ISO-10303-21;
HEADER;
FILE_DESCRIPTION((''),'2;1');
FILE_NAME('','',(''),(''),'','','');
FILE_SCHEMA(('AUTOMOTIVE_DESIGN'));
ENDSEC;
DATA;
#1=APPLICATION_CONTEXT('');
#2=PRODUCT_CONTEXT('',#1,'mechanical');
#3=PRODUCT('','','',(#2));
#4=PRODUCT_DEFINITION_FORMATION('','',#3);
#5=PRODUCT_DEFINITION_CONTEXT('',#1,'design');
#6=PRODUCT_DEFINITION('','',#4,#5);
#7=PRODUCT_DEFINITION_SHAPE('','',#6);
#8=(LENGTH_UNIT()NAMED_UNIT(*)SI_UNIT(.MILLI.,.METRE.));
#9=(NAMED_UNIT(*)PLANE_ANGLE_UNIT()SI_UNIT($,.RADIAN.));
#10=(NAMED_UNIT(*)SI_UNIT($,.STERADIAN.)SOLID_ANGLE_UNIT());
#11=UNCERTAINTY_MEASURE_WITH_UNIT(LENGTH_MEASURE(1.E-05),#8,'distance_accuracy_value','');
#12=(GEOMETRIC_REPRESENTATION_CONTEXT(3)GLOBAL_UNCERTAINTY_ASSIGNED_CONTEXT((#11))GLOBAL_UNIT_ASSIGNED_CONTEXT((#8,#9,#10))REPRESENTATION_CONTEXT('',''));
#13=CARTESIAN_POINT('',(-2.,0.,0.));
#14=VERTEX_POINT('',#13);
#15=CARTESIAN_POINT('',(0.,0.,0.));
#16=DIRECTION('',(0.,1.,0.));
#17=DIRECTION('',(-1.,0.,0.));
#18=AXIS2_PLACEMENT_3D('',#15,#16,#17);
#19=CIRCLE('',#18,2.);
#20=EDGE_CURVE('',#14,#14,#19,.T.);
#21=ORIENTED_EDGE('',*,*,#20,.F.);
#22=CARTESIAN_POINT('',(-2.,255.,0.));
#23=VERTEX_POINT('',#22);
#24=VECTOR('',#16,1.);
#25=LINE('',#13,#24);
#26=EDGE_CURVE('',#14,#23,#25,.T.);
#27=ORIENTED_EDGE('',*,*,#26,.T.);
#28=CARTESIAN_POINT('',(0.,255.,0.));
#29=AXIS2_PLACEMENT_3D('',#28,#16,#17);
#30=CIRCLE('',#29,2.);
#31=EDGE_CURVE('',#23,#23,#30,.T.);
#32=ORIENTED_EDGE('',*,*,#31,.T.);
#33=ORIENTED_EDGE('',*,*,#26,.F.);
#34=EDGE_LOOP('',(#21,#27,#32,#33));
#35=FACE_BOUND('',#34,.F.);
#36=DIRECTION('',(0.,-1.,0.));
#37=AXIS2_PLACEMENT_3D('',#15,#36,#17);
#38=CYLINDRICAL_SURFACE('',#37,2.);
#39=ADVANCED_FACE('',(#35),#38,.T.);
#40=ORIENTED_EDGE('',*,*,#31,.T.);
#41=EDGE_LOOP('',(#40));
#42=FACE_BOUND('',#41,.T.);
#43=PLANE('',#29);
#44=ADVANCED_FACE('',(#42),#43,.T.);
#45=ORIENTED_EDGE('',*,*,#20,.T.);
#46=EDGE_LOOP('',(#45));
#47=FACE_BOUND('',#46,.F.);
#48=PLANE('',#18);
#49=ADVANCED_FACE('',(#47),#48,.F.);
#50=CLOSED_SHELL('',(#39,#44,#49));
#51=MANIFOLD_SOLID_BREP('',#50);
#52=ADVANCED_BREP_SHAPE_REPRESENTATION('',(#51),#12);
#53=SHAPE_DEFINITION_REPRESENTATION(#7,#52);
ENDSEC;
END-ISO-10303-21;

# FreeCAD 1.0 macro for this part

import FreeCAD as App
import Part
import Sketcher

doc = App.newDocument("Part")
body = doc.addObject("PartDesign::Body", "Body")

sketch1 = body.newObject("Sketcher::SketchObject", "Sketch")
sketch1.AttachmentSupport = (doc.getObject("XZ_Plane"), [""])
sketch1.MapMode = "FlatFace"
sketch1.addGeometry(Part.Circle(App.Vector(0, 0, 0), App.Vector(0, 0, 1), 2), False)
sketch1.addConstraint(Sketcher.Constraint("Coincident", 0, 3, -1, 1))
sketch1.addConstraint(Sketcher.Constraint("Diameter", 0, 4.0))
pad1 = body.newObject("PartDesign::Pad", "Pad")
pad1.Profile = sketch1
pad1.Length = 255
pad1.Reversed = True

doc.recompute()
